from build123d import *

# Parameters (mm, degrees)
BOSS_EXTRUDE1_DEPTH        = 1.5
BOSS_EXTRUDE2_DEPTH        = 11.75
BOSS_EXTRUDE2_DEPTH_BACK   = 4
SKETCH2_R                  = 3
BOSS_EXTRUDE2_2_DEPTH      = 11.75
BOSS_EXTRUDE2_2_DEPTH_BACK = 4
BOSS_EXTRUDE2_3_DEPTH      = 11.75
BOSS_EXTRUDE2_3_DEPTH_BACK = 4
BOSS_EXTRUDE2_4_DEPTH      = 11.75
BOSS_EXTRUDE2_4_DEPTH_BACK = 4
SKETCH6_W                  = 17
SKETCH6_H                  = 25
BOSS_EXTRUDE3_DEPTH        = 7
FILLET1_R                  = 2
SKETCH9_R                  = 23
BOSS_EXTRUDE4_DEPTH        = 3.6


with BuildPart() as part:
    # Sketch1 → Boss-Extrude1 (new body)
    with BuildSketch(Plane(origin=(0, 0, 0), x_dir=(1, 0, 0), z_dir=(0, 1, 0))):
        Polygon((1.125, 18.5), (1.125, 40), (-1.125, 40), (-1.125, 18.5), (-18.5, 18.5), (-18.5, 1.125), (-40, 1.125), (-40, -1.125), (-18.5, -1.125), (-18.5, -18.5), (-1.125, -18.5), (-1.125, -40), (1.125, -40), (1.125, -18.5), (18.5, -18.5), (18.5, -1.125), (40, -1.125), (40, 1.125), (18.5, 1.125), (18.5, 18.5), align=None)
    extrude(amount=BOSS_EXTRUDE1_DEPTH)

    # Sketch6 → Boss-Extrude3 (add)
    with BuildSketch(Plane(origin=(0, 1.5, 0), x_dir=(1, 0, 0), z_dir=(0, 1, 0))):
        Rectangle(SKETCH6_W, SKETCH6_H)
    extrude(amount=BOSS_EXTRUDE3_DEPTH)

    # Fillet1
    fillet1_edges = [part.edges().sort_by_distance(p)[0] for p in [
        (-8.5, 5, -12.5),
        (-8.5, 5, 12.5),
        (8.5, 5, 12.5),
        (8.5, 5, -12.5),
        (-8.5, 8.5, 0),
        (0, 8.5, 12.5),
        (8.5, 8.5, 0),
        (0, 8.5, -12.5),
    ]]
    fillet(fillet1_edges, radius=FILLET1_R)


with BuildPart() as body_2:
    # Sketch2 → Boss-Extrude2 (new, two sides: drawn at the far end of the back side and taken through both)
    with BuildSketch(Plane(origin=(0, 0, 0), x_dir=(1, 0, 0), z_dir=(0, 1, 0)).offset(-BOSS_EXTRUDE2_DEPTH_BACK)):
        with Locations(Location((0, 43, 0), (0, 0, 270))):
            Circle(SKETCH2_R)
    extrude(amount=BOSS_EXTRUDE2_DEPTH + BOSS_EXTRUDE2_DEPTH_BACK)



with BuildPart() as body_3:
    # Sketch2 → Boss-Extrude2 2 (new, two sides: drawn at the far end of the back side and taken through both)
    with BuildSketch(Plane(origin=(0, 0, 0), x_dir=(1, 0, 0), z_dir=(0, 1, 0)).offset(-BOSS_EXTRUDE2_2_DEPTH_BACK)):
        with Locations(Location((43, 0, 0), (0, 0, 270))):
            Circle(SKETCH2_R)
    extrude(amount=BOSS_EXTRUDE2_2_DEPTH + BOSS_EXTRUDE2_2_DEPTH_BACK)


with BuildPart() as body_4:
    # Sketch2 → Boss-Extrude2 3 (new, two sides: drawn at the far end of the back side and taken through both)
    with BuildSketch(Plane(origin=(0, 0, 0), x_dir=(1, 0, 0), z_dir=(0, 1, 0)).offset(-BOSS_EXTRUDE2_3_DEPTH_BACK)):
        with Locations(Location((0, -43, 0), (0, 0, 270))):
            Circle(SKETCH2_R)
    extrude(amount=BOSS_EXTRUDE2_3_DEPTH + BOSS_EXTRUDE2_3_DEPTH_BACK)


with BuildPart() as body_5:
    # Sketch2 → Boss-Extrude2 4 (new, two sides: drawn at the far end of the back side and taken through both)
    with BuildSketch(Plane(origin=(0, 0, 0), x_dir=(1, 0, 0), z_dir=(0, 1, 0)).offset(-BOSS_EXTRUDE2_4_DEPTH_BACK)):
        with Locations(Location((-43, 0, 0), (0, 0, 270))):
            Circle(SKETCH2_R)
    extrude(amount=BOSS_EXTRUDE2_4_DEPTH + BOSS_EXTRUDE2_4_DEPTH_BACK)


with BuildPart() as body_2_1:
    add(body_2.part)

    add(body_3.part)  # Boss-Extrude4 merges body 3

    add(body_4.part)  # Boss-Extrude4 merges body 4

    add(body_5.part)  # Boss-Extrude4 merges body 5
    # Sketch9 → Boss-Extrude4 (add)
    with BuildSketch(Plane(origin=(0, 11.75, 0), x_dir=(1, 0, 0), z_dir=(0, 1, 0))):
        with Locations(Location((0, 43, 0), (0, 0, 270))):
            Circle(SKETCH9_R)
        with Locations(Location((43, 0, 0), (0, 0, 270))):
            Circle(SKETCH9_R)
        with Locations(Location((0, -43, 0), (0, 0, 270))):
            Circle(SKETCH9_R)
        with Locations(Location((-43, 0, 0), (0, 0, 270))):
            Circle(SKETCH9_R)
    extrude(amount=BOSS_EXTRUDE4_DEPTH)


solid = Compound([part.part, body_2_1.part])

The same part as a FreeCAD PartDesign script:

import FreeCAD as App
import Part
import Sketcher
from FreeCAD import Vector


def edges_at(feature, points):
    """Names of the edges that pass closest to the given points."""
    edges = feature.Shape.Edges
    near = lambda p: min(range(len(edges)), key=lambda i: edges[i].distToShape(Part.Vertex(*p))[0])
    return sorted({f"Edge{near(p) + 1}" for p in points})


def add_polygon(sketch, points):
    """Adds a closed chain of lines whose ends are joined by coincident constraints."""
    first, n = sketch.GeometryCount, len(points)
    for a, b in zip(points, points[1:] + points[:1]):
        sketch.addGeometry(Part.LineSegment(App.Vector(*a, 0), App.Vector(*b, 0)), False)
    for i in range(n):
        sketch.addConstraint(Sketcher.Constraint("Coincident", first + i, 2, first + (i + 1) % n, 1))

doc = App.newDocument("Part")
body = doc.addObject("PartDesign::Body", "Body")

sketch1 = body.newObject("Sketcher::SketchObject", "Sketch")
sketch1.AttachmentSupport = (doc.getObject("XZ_Plane"), [""])
sketch1.MapMode = "FlatFace"
add_polygon(sketch1, [(1.1, -18.5), (1.1, -40), (-1.1, -40), (-1.1, -18.5), (-18.5, -18.5), (-18.5, -1.1), (-40, -1.1), (-40, 1.1), (-18.5, 1.1), (-18.5, 18.5), (-1.1, 18.5), (-1.1, 40), (1.1, 40), (1.1, 18.5), (18.5, 18.5), (18.5, 1.1), (40, 1.1), (40, -1.1), (18.5, -1.1), (18.5, -18.5)])
sketch1.addConstraint([
    Sketcher.Constraint("Vertical", 0),
    Sketcher.Constraint("Horizontal", 1),
    Sketcher.Constraint("Vertical", 2),
    Sketcher.Constraint("Horizontal", 3),
    Sketcher.Constraint("Vertical", 4),
    Sketcher.Constraint("Horizontal", 5),
    Sketcher.Constraint("Vertical", 6),
    Sketcher.Constraint("Horizontal", 7),
    Sketcher.Constraint("Vertical", 8),
    Sketcher.Constraint("Horizontal", 9),
    Sketcher.Constraint("Vertical", 10),
    Sketcher.Constraint("Horizontal", 11),
    Sketcher.Constraint("Vertical", 12),
    Sketcher.Constraint("Horizontal", 13),
    Sketcher.Constraint("Vertical", 14),
    Sketcher.Constraint("Horizontal", 15),
    Sketcher.Constraint("Vertical", 16),
    Sketcher.Constraint("Horizontal", 17),
    Sketcher.Constraint("Vertical", 18),
    Sketcher.Constraint("Horizontal", 19),
    Sketcher.Constraint("Symmetric", 0, 2, 10, 2, -1, 1),
    Sketcher.Constraint("Symmetric", 2, 2, 12, 2, -1, 1),
    Sketcher.Constraint("Symmetric", 4, 2, 14, 2, -1, 1),
    Sketcher.Constraint("Symmetric", 6, 2, 16, 2, -1, 1),
    Sketcher.Constraint("Symmetric", 8, 2, 18, 2, -1, 1),
    Sketcher.Constraint("Symmetric", 9, 2, 12, 2, -2),
    Sketcher.Constraint("Symmetric", 7, 2, 14, 2, -2),
    Sketcher.Constraint("Equal", 17, 0),
    Sketcher.Constraint("Equal", 19, 4),
    Sketcher.Constraint("Equal", 11, 6),
    Sketcher.Constraint("DistanceX", 5, 2, 5, 1, 21.5),
    Sketcher.Constraint("DistanceY", 0, 2, -1, 1, 40.0),
    Sketcher.Constraint("DistanceX", 1, 2, 1, 1, 2.25),
])
pad1 = body.newObject("PartDesign::Pad", "Pad")
pad1.Profile = sketch1
pad1.Length = 1.5
pad1.Reversed = True

sketch2 = body.newObject("Sketcher::SketchObject", "Sketch001")
sketch2.AttachmentSupport = (doc.getObject("XZ_Plane"), [""])
sketch2.MapMode = "FlatFace"
sketch2.AttachmentOffset = App.Placement(Vector(0, 0, -1.5), App.Rotation())
add_polygon(sketch2, [(-8, -12), (-8, 12), (8, 12), (8, -12)])
sketch2.addConstraint([
    Sketcher.Constraint("Vertical", 0),
    Sketcher.Constraint("Horizontal", 1),
    Sketcher.Constraint("Vertical", 2),
    Sketcher.Constraint("Horizontal", 3),
    Sketcher.Constraint("Symmetric", 0, 2, 2, 2, -1, 1),
    Sketcher.Constraint("DistanceX", 1, 1, 1, 2, 17.0),
    Sketcher.Constraint("DistanceY", 0, 1, 0, 2, 25.0),
])
pad2 = body.newObject("PartDesign::Pad", "Pad001")
pad2.Profile = sketch2
pad2.Length = 7
pad2.Reversed = True
doc.recompute()

fillet = body.newObject("PartDesign::Fillet", "Fillet")
fillet.Base = (pad2, edges_at(pad2, [
    (-8.5, 5, -12.5),
    (-8.5, 5, 12.5),
    (8.5, 5, 12.5),
    (8.5, 5, -12.5),
    (-8.5, 8.5, 0),
    (0, 8.5, 12.5),
    (8.5, 8.5, 0),
    (0, 8.5, -12.5),
]))
fillet.Radius = 2
body2 = doc.addObject("PartDesign::Body", "Body001")

sketch3 = body2.newObject("Sketcher::SketchObject", "Sketch002")
sketch3.AttachmentSupport = (doc.getObject("XZ_Plane001"), [""])
sketch3.MapMode = "FlatFace"
sketch3.addGeometry(Part.Circle(Vector(0, -43, 0), Vector(0, 0, 1), 3), False)
sketch3.addConstraint([
    Sketcher.Constraint("PointOnObject", 0, 3, -2),
    Sketcher.Constraint("Diameter", 0, 6.0),
    Sketcher.Constraint("DistanceY", 0, 3, -1, 1, 43.0),
])
pad3 = body2.newObject("PartDesign::Pad", "Pad002")
pad3.Profile = sketch3
pad3.Type = "TwoLengths"
pad3.Length = 11.75
pad3.Length2 = 4
pad3.Reversed = True
body3 = doc.addObject("PartDesign::Body", "Body002")

sketch4 = body3.newObject("Sketcher::SketchObject", "Sketch003")
sketch4.AttachmentSupport = (doc.getObject("XZ_Plane002"), [""])
sketch4.MapMode = "FlatFace"
sketch4.addGeometry(Part.Circle(Vector(43, 0, 0), Vector(0, 0, 1), 3), False)
sketch4.addConstraint([
    Sketcher.Constraint("PointOnObject", 0, 3, -1),
    Sketcher.Constraint("Diameter", 0, 6.0),
    Sketcher.Constraint("DistanceX", -1, 1, 0, 3, 43.0),
])
pad4 = body3.newObject("PartDesign::Pad", "Pad003")
pad4.Profile = sketch4
pad4.Type = "TwoLengths"
pad4.Length = 11.75
pad4.Length2 = 4
pad4.Reversed = True
body4 = doc.addObject("PartDesign::Body", "Body003")

sketch5 = body4.newObject("Sketcher::SketchObject", "Sketch004")
sketch5.AttachmentSupport = (doc.getObject("XZ_Plane003"), [""])
sketch5.MapMode = "FlatFace"
sketch5.addGeometry(Part.Circle(Vector(0, 43, 0), Vector(0, 0, 1), 3), False)
sketch5.addConstraint([
    Sketcher.Constraint("PointOnObject", 0, 3, -2),
    Sketcher.Constraint("Diameter", 0, 6.0),
    Sketcher.Constraint("DistanceY", -1, 1, 0, 3, 43.0),
])
pad5 = body4.newObject("PartDesign::Pad", "Pad004")
pad5.Profile = sketch5
pad5.Type = "TwoLengths"
pad5.Length = 11.75
pad5.Length2 = 4
pad5.Reversed = True
body5 = doc.addObject("PartDesign::Body", "Body004")

sketch6 = body5.newObject("Sketcher::SketchObject", "Sketch005")
sketch6.AttachmentSupport = (doc.getObject("XZ_Plane004"), [""])
sketch6.MapMode = "FlatFace"
sketch6.addGeometry(Part.Circle(Vector(-43, 0, 0), Vector(0, 0, 1), 3), False)
sketch6.addConstraint([
    Sketcher.Constraint("PointOnObject", 0, 3, -1),
    Sketcher.Constraint("Diameter", 0, 6.0),
    Sketcher.Constraint("DistanceX", 0, 3, -1, 1, 43.0),
])
pad6 = body5.newObject("PartDesign::Pad", "Pad005")
pad6.Profile = sketch6
pad6.Type = "TwoLengths"
pad6.Length = 11.75
pad6.Length2 = 4
pad6.Reversed = True
body2.AllowCompound = True
doc.recompute()

boolean = body2.newObject("PartDesign::Boolean", "Boolean")
boolean.Type = "Fuse"
boolean.addObjects([body3])
doc.recompute()

boolean2 = body2.newObject("PartDesign::Boolean", "Boolean001")
boolean2.Type = "Fuse"
boolean2.addObjects([body4])
doc.recompute()

boolean3 = body2.newObject("PartDesign::Boolean", "Boolean002")
boolean3.Type = "Fuse"
boolean3.addObjects([body5])

sketch7 = body2.newObject("Sketcher::SketchObject", "Sketch006")
sketch7.AttachmentSupport = (doc.getObject("XZ_Plane001"), [""])
sketch7.MapMode = "FlatFace"
sketch7.AttachmentOffset = App.Placement(Vector(0, 0, -11.75), App.Rotation())
sketch7.addGeometry([
    Part.Circle(Vector(0, -43, 0), Vector(0, 0, 1), 23),
    Part.Circle(Vector(43, 0, 0), Vector(0, 0, 1), 23),
    Part.Circle(Vector(0, 43, 0), Vector(0, 0, 1), 23),
    Part.Circle(Vector(-43, 0, 0), Vector(0, 0, 1), 23),
], False)
sketch7.addConstraint([
    Sketcher.Constraint("Equal", 0, 1),
    Sketcher.Constraint("Equal", 1, 2),
    Sketcher.Constraint("Equal", 2, 3),
    Sketcher.Constraint("Symmetric", 0, 3, 2, 3, -1, 1),
    Sketcher.Constraint("Symmetric", 1, 3, 3, 3, -1, 1),
    Sketcher.Constraint("PointOnObject", 0, 3, -2),
    Sketcher.Constraint("PointOnObject", 1, 3, -1),
    Sketcher.Constraint("Diameter", 0, 46.0),
    Sketcher.Constraint("DistanceY", 0, 3, -1, 1, 43.0),
    Sketcher.Constraint("DistanceX", -1, 1, 1, 3, 43.0),
])
pad7 = body2.newObject("PartDesign::Pad", "Pad006")
pad7.Profile = sketch7
pad7.Length = 3.6
pad7.Reversed = True

doc.recompute()
